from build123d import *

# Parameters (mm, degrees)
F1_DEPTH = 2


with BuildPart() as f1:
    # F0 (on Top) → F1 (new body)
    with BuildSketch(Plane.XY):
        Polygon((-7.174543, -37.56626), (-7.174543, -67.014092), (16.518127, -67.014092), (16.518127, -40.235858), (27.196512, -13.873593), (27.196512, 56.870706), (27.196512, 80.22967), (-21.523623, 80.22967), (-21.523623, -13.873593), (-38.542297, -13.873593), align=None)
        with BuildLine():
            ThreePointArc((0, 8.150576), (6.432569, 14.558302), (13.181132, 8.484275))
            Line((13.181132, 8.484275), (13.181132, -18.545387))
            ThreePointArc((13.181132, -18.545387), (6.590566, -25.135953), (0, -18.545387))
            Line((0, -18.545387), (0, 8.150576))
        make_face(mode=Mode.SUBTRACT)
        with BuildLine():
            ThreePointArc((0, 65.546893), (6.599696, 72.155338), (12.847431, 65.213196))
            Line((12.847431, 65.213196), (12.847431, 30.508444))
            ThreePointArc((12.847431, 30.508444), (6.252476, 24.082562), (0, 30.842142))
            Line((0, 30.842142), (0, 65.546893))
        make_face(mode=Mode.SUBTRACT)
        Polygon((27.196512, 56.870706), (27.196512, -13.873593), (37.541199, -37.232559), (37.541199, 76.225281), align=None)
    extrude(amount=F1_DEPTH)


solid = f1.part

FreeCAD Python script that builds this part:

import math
import FreeCAD as App
import Part
import Sketcher
from FreeCAD import Vector


def add_polygon(sketch, points):
    """Adds a closed chain of lines whose ends are joined by coincident constraints."""
    first, n = sketch.GeometryCount, len(points)
    for a, b in zip(points, points[1:] + points[:1]):
        sketch.addGeometry(Part.LineSegment(App.Vector(*a, 0), App.Vector(*b, 0)), False)
    for i in range(n):
        sketch.addConstraint(Sketcher.Constraint("Coincident", first + i, 2, first + (i + 1) % n, 1))

doc = App.newDocument("Part")
params = doc.addObject("Spreadsheet::Sheet", "Params")
for row, (alias, value) in enumerate([
    ("pad1_length", "2 mm"),
], start=1):
    params.set(f"A{row}", alias)
    params.set(f"B{row}", "=" + value)
    params.setAlias(f"B{row}", alias)

body = doc.addObject("PartDesign::Body", "Body")

# Sketch on XY plane
sketch1 = body.newObject("Sketcher::SketchObject", "Sketch")
sketch1.AttachmentSupport = (doc.getObject("XY_Plane"), [""])
sketch1.MapMode = "FlatFace"
add_polygon(sketch1, [(-7.174543, -37.56626), (-7.174543, -67.014092), (16.518127, -67.014092), (16.518127, -40.235858), (27.196512, -13.873593), (37.541199, -37.232559), (37.541199, 76.225281), (27.196512, 56.870706), (27.196512, 80.22967), (-21.523623, 80.22967), (-21.523623, -13.873593), (-38.542297, -13.873593)])  # lines 0-11
sketch1.addGeometry(Part.LineSegment(Vector(0, -18.545387, 0), Vector(0, 8.150576, 0)), False)  # 12
sketch1.addGeometry(Part.ArcOfCircle(Part.Circle(Vector(6.599667, 7.957939, 0), Vector(0, 0, 1), 6.602478), math.radians(4.572353), math.radians(178.328075)), False)  # 13
sketch1.addGeometry(Part.LineSegment(Vector(13.181132, 8.484275, 0), Vector(13.181132, -18.545387, 0)), False)  # 14
sketch1.addGeometry(Part.ArcOfCircle(Part.Circle(Vector(6.590566, -18.545387, 0), Vector(0, 0, 1), 6.590566), math.radians(180), math.radians(360)), False)  # 15
sketch1.addGeometry(Part.LineSegment(Vector(0, 30.842142, 0), Vector(0, 65.546893, 0)), False)  # 16
sketch1.addGeometry(Part.ArcOfCircle(Part.Circle(Vector(6.43261, 65.722501, 0), Vector(0, 0, 1), 6.435007), math.radians(-4.539475), math.radians(181.563763)), False)  # 17
sketch1.addGeometry(Part.LineSegment(Vector(12.847431, 65.213196, 0), Vector(12.847431, 30.508444, 0)), False)  # 18
sketch1.addGeometry(Part.ArcOfCircle(Part.Circle(Vector(6.419382, 30.508444, 0), Vector(0, 0, 1), 6.428049), math.radians(177.024278), math.radians(360)), False)  # 19
sketch1.addConstraint(Sketcher.Constraint("Coincident", 12, 2, 13, 2))
sketch1.addConstraint(Sketcher.Constraint("Coincident", 13, 1, 14, 1))
sketch1.addConstraint(Sketcher.Constraint("Tangent", 14, 2, 15, 2))
sketch1.addConstraint(Sketcher.Constraint("Tangent", 15, 1, 12, 1))
sketch1.addConstraint(Sketcher.Constraint("Coincident", 16, 2, 17, 2))
sketch1.addConstraint(Sketcher.Constraint("Coincident", 17, 1, 18, 1))
sketch1.addConstraint(Sketcher.Constraint("Tangent", 18, 2, 19, 2))
sketch1.addConstraint(Sketcher.Constraint("Coincident", 19, 1, 16, 1))
sketch1.addConstraint(Sketcher.Constraint("Vertical", 0))
sketch1.addConstraint(Sketcher.Constraint("Horizontal", 1))
sketch1.addConstraint(Sketcher.Constraint("Vertical", 2))
sketch1.addConstraint(Sketcher.Constraint("Vertical", 5))
sketch1.addConstraint(Sketcher.Constraint("Vertical", 7))
sketch1.addConstraint(Sketcher.Constraint("Horizontal", 8))
sketch1.addConstraint(Sketcher.Constraint("Vertical", 9))
sketch1.addConstraint(Sketcher.Constraint("Horizontal", 10))
sketch1.addConstraint(Sketcher.Constraint("Vertical", 12))
sketch1.addConstraint(Sketcher.Constraint("Vertical", 14))
sketch1.addConstraint(Sketcher.Constraint("Vertical", 16))
sketch1.addConstraint(Sketcher.Constraint("Vertical", 18))
sketch1.addConstraint(Sketcher.Constraint("PointOnObject", 12, 2, -2))
sketch1.addConstraint(Sketcher.Constraint("PointOnObject", 16, 2, -2))
sketch1.addConstraint(Sketcher.Constraint("Horizontal", 3, 2, 9, 2))
sketch1.addConstraint(Sketcher.Constraint("Vertical", 3, 2, 6, 2))
sketch1.addConstraint(Sketcher.Constraint("Equal", 16, 18))
sketch1.addConstraint(Sketcher.Constraint("Radius", 19, 6.428049))
sketch1.addConstraint(Sketcher.Constraint("Radius", 13, 6.602478))
sketch1.addConstraint(Sketcher.Constraint("Radius", 15, 6.590566))
sketch1.addConstraint(Sketcher.Constraint("Radius", 17, 6.435007))
sketch1.addConstraint(Sketcher.Constraint("DistanceX", 1, 1, 1, 2, 23.69267))
sketch1.addConstraint(Sketcher.Constraint("DistanceY", 5, 1, 5, 2, 113.45784))
sketch1.addConstraint(Sketcher.Constraint("DistanceY", 16, 1, 16, 2, 34.704751))
sketch1.addConstraint(Sketcher.Constraint("DistanceY", -1, 1, 17, 3, 65.722501))
sketch1.addConstraint(Sketcher.Constraint("DistanceX", -1, 1, 4, 2, 37.541199))
sketch1.addConstraint(Sketcher.Constraint("DistanceX", 15, 3, 13, 3, 0.009101))
sketch1.addConstraint(Sketcher.Constraint("DistanceY", 2, 2, 19, 3, 70.744302))
sketch1.addConstraint(Sketcher.Constraint("DistanceY", 1, 2, 3, 2, 53.140499))
sketch1.addConstraint(Sketcher.Constraint("DistanceY", 2, 2, 4, 2, 3.003299))
sketch1.addConstraint(Sketcher.Constraint("DistanceX", 17, 3, 6, 2, 20.763902))
sketch1.addConstraint(Sketcher.Constraint("DistanceY", 3, 2, 6, 2, 70.744299))
sketch1.addConstraint(Sketcher.Constraint("DistanceY", 2, 2, 11, 2, 2.669598))
sketch1.addConstraint(Sketcher.Constraint("DistanceX", 18, 2, 13, 1, 0.333701))
sketch1.addConstraint(Sketcher.Constraint("Distance", 3, 28.442871))
sketch1.addConstraint(Sketcher.Constraint("Distance", 4, 25.547091))
sketch1.addConstraint(Sketcher.Constraint("Distance", 11, 39.31003))
sketch1.addConstraint(Sketcher.Constraint("DistanceX", 8, 2, 8, 1, 48.720135))
sketch1.addConstraint(Sketcher.Constraint("DistanceY", 7, 1, 7, 2, 23.358964))
sketch1.addConstraint(Sketcher.Constraint("DistanceY", 12, 1, 12, 2, 26.695963))
sketch1.addConstraint(Sketcher.Constraint("DistanceY", -1, 1, 13, 3, 7.957939))
pad1 = body.newObject("PartDesign::Pad", "Pad")
pad1.Profile = sketch1
pad1.setExpression("Length", "Params.pad1_length")

doc.recompute()
